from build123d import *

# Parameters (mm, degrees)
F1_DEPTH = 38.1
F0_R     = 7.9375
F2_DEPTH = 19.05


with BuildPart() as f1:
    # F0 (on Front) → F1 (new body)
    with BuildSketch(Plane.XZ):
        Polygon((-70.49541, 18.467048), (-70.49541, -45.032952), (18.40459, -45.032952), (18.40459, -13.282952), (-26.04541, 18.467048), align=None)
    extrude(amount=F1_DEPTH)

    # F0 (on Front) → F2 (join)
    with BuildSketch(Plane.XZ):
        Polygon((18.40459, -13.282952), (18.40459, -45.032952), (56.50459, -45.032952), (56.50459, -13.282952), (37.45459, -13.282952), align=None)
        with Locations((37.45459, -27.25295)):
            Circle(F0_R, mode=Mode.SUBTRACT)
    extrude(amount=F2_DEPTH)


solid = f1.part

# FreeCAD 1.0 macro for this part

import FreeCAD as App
import Part
import Sketcher
from FreeCAD import Vector
Q = App.Units.Quantity


def add_polygon(sketch, points):
    """Adds a closed chain of lines whose ends are joined by coincident constraints."""
    first, n = sketch.GeometryCount, len(points)
    for a, b in zip(points, points[1:] + points[:1]):
        sketch.addGeometry(Part.LineSegment(App.Vector(*a, 0), App.Vector(*b, 0)), False)
    for i in range(n):
        sketch.addConstraint(Sketcher.Constraint("Coincident", first + i, 2, first + (i + 1) % n, 1))

doc = App.newDocument("Part")
params = doc.addObject("Spreadsheet::Sheet", "Params")
for row, (alias, value) in enumerate([
    ("sketch1_width", "3.5 in"),
    ("sketch1_height", "2.5 in"),
    ("sketch1_width2", "1.75 in"),
    ("sketch1_height2", "1.25 in"),
    ("pad1_length", "1.5 in"),
    ("sketch2_diameter", "0.625 in"),
    ("sketch2_width", "1.5 in"),
    ("sketch2_height", "1.25 in"),
    ("pad2_length", "0.75 in"),
], start=1):
    params.set(f"A{row}", alias)
    params.set(f"B{row}", "=" + value)
    params.setAlias(f"B{row}", alias)

body = doc.addObject("PartDesign::Body", "Body")

# Sketch on XZ plane
sketch1 = doc.addObject("Sketcher::SketchObject", "Sketch")
body.addObject(sketch1)
sketch1.AttachmentSupport = (doc.XZ_Plane, [""])
sketch1.MapMode = "FlatFace"
add_polygon(sketch1, [(-70.49541, 18.467048), (-70.49541, -45.032952), (18.40459, -45.032952), (18.40459, -13.282952), (-26.04541, 18.467048)])  # lines 0-4
sketch1.addConstraint([
    Sketcher.Constraint("Vertical", 0),
    Sketcher.Constraint("Horizontal", 1),
    Sketcher.Constraint("Vertical", 2),
    Sketcher.Constraint("Horizontal", 4),
    Sketcher.Constraint("DistanceX", 1, 1, 1, 2, Q("3.5 in")),
    Sketcher.Constraint("DistanceY", 0, 2, 0, 1, Q("2.5 in")),
    Sketcher.Constraint("DistanceX", 4, 2, 4, 1, Q("1.75 in")),
    Sketcher.Constraint("DistanceY", 2, 1, 2, 2, Q("1.25 in")),
    Sketcher.Constraint("DistanceX", 0, 2, -1, 1, Q("70.49541 mm")),
    Sketcher.Constraint("DistanceY", 0, 2, -1, 1, Q("45.032952 mm")),
])
sketch1.setExpression("Constraints[9]", "Params.sketch1_width")
sketch1.setExpression("Constraints[10]", "Params.sketch1_height")
sketch1.setExpression("Constraints[11]", "Params.sketch1_width2")
sketch1.setExpression("Constraints[12]", "Params.sketch1_height2")
pad1 = doc.addObject("PartDesign::Pad", "Pad")
body.addObject(pad1)
pad1.Profile = sketch1
pad1.setExpression("Length", "Params.pad1_length")

# Sketch on XZ plane
sketch2 = doc.addObject("Sketcher::SketchObject", "Sketch001")
body.addObject(sketch2)
sketch2.AttachmentSupport = (doc.XZ_Plane, [""])
sketch2.MapMode = "FlatFace"
add_polygon(sketch2, [(18.40459, -13.282952), (18.40459, -45.032952), (56.50459, -45.032952), (56.50459, -13.282952)])  # lines 0-3
sketch2.addGeometry(Part.Circle(Vector(37.45459, -27.25295, 0), Vector(0, 0, 1), 7.9375), False)  # 4
sketch2.addConstraint([
    Sketcher.Constraint("Vertical", 0),
    Sketcher.Constraint("Horizontal", 1),
    Sketcher.Constraint("Vertical", 2),
    Sketcher.Constraint("Horizontal", 3),
    Sketcher.Constraint("Diameter", 4, Q("0.625 in")),
    Sketcher.Constraint("DistanceX", 1, 1, 1, 2, Q("1.5 in")),
    Sketcher.Constraint("DistanceY", 0, 2, 0, 1, Q("1.25 in")),
    Sketcher.Constraint("DistanceY", 0, 2, 4, 3, Q("0.7000001 in")),
    Sketcher.Constraint("DistanceX", 0, 2, 4, 3, Q("0.75 in")),
    Sketcher.Constraint("DistanceX", -1, 1, 4, 3, Q("37.45459 mm")),
    Sketcher.Constraint("DistanceY", 4, 3, -1, 1, Q("27.25295 mm")),
])
sketch2.setExpression("Constraints[8]", "Params.sketch2_diameter")
sketch2.setExpression("Constraints[9]", "Params.sketch2_width")
sketch2.setExpression("Constraints[10]", "Params.sketch2_height")
pad2 = doc.addObject("PartDesign::Pad", "Pad001")
body.addObject(pad2)
pad2.Profile = sketch2
pad2.setExpression("Length", "Params.pad2_length")

doc.recompute()
